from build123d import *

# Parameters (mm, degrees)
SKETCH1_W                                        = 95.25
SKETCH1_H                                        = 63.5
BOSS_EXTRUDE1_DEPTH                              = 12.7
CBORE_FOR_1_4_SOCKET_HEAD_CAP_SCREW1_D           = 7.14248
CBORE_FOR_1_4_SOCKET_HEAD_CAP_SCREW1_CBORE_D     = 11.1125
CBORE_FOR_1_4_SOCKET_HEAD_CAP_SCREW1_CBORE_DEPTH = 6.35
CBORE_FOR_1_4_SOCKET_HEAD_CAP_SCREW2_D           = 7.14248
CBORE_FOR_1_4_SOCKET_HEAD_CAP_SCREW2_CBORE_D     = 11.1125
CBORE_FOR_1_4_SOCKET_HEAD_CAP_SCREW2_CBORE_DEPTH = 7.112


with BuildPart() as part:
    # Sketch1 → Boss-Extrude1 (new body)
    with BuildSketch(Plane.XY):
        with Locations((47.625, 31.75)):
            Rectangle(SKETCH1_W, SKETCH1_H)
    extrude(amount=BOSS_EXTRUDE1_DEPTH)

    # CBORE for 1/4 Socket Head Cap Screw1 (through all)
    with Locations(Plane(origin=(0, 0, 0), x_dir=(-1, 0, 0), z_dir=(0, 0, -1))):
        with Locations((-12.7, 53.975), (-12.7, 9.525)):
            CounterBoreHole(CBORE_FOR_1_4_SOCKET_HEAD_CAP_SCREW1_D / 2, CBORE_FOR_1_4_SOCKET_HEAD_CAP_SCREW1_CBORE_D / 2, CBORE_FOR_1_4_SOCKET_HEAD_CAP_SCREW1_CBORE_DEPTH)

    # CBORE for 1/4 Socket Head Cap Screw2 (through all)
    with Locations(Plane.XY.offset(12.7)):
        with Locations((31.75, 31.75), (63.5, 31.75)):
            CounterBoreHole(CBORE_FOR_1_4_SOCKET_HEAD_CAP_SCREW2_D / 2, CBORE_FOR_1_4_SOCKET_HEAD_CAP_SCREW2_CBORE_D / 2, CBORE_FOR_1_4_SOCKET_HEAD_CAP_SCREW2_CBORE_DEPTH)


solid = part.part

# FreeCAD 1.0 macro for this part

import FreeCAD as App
import Part
import Sketcher

V = App.Vector
Q = App.Units.Quantity


def add_polygon(sketch, points):
    """Adds a closed chain of lines whose ends are joined by coincident constraints."""
    first, n = sketch.GeometryCount, len(points)
    for a, b in zip(points, points[1:] + points[:1]):
        sketch.addGeometry(Part.LineSegment(App.Vector(*a, 0), App.Vector(*b, 0)), False)
    for i in range(n):
        sketch.addConstraint(Sketcher.Constraint("Coincident", first + i, 2, first + (i + 1) % n, 1))

doc = App.newDocument("Part")
body = doc.addObject("PartDesign::Body", "Body")

# Sketch on XY plane
sketch1 = body.newObject("Sketcher::SketchObject", "Sketch")
sketch1.AttachmentSupport = (doc.getObject("XY_Plane"), [""])
sketch1.MapMode = "FlatFace"
add_polygon(sketch1, [(0, 63.5), (0, 0), (95.25, 0), (95.25, 63.5)])  # lines 0-3
sketch1.addConstraint(Sketcher.Constraint("Vertical", 0))
sketch1.addConstraint(Sketcher.Constraint("Horizontal", 1))
sketch1.addConstraint(Sketcher.Constraint("Vertical", 2))
sketch1.addConstraint(Sketcher.Constraint("Horizontal", 3))
sketch1.addConstraint(Sketcher.Constraint("Coincident", 0, 2, -1, 1))
sketch1.addConstraint(Sketcher.Constraint("DistanceY", 0, 2, 0, 1, Q("2.5 in")))
sketch1.addConstraint(Sketcher.Constraint("DistanceX", 1, 1, 1, 2, Q("3.75 in")))
pad1 = body.newObject("PartDesign::Pad", "Pad")
pad1.Profile = sketch1
pad1.Length = Q("0.5 in")

# Sketch on XY plane
sketch2 = body.newObject("Sketcher::SketchObject", "Sketch001")
sketch2.AttachmentSupport = (doc.getObject("XY_Plane"), [""])
sketch2.MapMode = "FlatFace"
sketch2.addGeometry(Part.Circle(V(12.7, 53.975, 0), V(0, 0, 1), 3.57124), False)
sketch2.addGeometry(Part.Circle(V(12.7, 9.525, 0), V(0, 0, 1), 3.57124), False)
sketch2.addConstraint(Sketcher.Constraint("Equal", 0, 1))
sketch2.addConstraint(Sketcher.Constraint("Vertical", 0, 3, 1, 3))
sketch2.addConstraint(Sketcher.Constraint("Diameter", 0, Q("0.2812 in")))
sketch2.addConstraint(Sketcher.Constraint("DistanceX", -1, 1, 0, 3, Q("0.5 in")))
sketch2.addConstraint(Sketcher.Constraint("DistanceY", 1, 3, 0, 3, Q("1.75 in")))
sketch2.addConstraint(Sketcher.Constraint("DistanceY", -1, 1, 0, 3, Q("2.125 in")))
doc.recompute()
hole = body.newObject("PartDesign::Hole", "Hole")
hole.Profile = sketch2
hole.ThreadType = "None"
hole.Diameter = Q("0.2812 in")
hole.DepthType = "ThroughAll"
hole.HoleCutType = "Counterbore"
hole.HoleCutDiameter = Q("0.4375 in")
hole.HoleCutDepth = Q("0.25 in")
hole.Reversed = True

# Sketch on XY plane
sketch3 = body.newObject("Sketcher::SketchObject", "Sketch002")
sketch3.AttachmentSupport = (doc.getObject("XY_Plane"), [""])
sketch3.MapMode = "FlatFace"
sketch3.AttachmentOffset = App.Placement(V(0, 0, 0.5 * 25.4), App.Rotation())
sketch3.addGeometry(Part.Circle(V(31.75, 31.75, 0), V(0, 0, 1), 3.57124), False)
sketch3.addGeometry(Part.Circle(V(63.5, 31.75, 0), V(0, 0, 1), 3.57124), False)
sketch3.addConstraint(Sketcher.Constraint("Equal", 0, 1))
sketch3.addConstraint(Sketcher.Constraint("Horizontal", 0, 3, 1, 3))
sketch3.addConstraint(Sketcher.Constraint("Diameter", 0, Q("0.2812 in")))
sketch3.addConstraint(Sketcher.Constraint("DistanceX", -1, 1, 1, 3, Q("2.5 in")))
sketch3.addConstraint(Sketcher.Constraint("DistanceX", -1, 1, 0, 3, Q("1.25 in")))
sketch3.addConstraint(Sketcher.Constraint("DistanceY", -1, 1, 0, 3, Q("1.25 in")))
doc.recompute()
hole2 = body.newObject("PartDesign::Hole", "Hole001")
hole2.Profile = sketch3
hole2.ThreadType = "None"
hole2.Diameter = Q("0.2812 in")
hole2.DepthType = "ThroughAll"
hole2.HoleCutType = "Counterbore"
hole2.HoleCutDiameter = Q("0.4375 in")
hole2.HoleCutDepth = Q("0.28 in")

doc.recompute()
